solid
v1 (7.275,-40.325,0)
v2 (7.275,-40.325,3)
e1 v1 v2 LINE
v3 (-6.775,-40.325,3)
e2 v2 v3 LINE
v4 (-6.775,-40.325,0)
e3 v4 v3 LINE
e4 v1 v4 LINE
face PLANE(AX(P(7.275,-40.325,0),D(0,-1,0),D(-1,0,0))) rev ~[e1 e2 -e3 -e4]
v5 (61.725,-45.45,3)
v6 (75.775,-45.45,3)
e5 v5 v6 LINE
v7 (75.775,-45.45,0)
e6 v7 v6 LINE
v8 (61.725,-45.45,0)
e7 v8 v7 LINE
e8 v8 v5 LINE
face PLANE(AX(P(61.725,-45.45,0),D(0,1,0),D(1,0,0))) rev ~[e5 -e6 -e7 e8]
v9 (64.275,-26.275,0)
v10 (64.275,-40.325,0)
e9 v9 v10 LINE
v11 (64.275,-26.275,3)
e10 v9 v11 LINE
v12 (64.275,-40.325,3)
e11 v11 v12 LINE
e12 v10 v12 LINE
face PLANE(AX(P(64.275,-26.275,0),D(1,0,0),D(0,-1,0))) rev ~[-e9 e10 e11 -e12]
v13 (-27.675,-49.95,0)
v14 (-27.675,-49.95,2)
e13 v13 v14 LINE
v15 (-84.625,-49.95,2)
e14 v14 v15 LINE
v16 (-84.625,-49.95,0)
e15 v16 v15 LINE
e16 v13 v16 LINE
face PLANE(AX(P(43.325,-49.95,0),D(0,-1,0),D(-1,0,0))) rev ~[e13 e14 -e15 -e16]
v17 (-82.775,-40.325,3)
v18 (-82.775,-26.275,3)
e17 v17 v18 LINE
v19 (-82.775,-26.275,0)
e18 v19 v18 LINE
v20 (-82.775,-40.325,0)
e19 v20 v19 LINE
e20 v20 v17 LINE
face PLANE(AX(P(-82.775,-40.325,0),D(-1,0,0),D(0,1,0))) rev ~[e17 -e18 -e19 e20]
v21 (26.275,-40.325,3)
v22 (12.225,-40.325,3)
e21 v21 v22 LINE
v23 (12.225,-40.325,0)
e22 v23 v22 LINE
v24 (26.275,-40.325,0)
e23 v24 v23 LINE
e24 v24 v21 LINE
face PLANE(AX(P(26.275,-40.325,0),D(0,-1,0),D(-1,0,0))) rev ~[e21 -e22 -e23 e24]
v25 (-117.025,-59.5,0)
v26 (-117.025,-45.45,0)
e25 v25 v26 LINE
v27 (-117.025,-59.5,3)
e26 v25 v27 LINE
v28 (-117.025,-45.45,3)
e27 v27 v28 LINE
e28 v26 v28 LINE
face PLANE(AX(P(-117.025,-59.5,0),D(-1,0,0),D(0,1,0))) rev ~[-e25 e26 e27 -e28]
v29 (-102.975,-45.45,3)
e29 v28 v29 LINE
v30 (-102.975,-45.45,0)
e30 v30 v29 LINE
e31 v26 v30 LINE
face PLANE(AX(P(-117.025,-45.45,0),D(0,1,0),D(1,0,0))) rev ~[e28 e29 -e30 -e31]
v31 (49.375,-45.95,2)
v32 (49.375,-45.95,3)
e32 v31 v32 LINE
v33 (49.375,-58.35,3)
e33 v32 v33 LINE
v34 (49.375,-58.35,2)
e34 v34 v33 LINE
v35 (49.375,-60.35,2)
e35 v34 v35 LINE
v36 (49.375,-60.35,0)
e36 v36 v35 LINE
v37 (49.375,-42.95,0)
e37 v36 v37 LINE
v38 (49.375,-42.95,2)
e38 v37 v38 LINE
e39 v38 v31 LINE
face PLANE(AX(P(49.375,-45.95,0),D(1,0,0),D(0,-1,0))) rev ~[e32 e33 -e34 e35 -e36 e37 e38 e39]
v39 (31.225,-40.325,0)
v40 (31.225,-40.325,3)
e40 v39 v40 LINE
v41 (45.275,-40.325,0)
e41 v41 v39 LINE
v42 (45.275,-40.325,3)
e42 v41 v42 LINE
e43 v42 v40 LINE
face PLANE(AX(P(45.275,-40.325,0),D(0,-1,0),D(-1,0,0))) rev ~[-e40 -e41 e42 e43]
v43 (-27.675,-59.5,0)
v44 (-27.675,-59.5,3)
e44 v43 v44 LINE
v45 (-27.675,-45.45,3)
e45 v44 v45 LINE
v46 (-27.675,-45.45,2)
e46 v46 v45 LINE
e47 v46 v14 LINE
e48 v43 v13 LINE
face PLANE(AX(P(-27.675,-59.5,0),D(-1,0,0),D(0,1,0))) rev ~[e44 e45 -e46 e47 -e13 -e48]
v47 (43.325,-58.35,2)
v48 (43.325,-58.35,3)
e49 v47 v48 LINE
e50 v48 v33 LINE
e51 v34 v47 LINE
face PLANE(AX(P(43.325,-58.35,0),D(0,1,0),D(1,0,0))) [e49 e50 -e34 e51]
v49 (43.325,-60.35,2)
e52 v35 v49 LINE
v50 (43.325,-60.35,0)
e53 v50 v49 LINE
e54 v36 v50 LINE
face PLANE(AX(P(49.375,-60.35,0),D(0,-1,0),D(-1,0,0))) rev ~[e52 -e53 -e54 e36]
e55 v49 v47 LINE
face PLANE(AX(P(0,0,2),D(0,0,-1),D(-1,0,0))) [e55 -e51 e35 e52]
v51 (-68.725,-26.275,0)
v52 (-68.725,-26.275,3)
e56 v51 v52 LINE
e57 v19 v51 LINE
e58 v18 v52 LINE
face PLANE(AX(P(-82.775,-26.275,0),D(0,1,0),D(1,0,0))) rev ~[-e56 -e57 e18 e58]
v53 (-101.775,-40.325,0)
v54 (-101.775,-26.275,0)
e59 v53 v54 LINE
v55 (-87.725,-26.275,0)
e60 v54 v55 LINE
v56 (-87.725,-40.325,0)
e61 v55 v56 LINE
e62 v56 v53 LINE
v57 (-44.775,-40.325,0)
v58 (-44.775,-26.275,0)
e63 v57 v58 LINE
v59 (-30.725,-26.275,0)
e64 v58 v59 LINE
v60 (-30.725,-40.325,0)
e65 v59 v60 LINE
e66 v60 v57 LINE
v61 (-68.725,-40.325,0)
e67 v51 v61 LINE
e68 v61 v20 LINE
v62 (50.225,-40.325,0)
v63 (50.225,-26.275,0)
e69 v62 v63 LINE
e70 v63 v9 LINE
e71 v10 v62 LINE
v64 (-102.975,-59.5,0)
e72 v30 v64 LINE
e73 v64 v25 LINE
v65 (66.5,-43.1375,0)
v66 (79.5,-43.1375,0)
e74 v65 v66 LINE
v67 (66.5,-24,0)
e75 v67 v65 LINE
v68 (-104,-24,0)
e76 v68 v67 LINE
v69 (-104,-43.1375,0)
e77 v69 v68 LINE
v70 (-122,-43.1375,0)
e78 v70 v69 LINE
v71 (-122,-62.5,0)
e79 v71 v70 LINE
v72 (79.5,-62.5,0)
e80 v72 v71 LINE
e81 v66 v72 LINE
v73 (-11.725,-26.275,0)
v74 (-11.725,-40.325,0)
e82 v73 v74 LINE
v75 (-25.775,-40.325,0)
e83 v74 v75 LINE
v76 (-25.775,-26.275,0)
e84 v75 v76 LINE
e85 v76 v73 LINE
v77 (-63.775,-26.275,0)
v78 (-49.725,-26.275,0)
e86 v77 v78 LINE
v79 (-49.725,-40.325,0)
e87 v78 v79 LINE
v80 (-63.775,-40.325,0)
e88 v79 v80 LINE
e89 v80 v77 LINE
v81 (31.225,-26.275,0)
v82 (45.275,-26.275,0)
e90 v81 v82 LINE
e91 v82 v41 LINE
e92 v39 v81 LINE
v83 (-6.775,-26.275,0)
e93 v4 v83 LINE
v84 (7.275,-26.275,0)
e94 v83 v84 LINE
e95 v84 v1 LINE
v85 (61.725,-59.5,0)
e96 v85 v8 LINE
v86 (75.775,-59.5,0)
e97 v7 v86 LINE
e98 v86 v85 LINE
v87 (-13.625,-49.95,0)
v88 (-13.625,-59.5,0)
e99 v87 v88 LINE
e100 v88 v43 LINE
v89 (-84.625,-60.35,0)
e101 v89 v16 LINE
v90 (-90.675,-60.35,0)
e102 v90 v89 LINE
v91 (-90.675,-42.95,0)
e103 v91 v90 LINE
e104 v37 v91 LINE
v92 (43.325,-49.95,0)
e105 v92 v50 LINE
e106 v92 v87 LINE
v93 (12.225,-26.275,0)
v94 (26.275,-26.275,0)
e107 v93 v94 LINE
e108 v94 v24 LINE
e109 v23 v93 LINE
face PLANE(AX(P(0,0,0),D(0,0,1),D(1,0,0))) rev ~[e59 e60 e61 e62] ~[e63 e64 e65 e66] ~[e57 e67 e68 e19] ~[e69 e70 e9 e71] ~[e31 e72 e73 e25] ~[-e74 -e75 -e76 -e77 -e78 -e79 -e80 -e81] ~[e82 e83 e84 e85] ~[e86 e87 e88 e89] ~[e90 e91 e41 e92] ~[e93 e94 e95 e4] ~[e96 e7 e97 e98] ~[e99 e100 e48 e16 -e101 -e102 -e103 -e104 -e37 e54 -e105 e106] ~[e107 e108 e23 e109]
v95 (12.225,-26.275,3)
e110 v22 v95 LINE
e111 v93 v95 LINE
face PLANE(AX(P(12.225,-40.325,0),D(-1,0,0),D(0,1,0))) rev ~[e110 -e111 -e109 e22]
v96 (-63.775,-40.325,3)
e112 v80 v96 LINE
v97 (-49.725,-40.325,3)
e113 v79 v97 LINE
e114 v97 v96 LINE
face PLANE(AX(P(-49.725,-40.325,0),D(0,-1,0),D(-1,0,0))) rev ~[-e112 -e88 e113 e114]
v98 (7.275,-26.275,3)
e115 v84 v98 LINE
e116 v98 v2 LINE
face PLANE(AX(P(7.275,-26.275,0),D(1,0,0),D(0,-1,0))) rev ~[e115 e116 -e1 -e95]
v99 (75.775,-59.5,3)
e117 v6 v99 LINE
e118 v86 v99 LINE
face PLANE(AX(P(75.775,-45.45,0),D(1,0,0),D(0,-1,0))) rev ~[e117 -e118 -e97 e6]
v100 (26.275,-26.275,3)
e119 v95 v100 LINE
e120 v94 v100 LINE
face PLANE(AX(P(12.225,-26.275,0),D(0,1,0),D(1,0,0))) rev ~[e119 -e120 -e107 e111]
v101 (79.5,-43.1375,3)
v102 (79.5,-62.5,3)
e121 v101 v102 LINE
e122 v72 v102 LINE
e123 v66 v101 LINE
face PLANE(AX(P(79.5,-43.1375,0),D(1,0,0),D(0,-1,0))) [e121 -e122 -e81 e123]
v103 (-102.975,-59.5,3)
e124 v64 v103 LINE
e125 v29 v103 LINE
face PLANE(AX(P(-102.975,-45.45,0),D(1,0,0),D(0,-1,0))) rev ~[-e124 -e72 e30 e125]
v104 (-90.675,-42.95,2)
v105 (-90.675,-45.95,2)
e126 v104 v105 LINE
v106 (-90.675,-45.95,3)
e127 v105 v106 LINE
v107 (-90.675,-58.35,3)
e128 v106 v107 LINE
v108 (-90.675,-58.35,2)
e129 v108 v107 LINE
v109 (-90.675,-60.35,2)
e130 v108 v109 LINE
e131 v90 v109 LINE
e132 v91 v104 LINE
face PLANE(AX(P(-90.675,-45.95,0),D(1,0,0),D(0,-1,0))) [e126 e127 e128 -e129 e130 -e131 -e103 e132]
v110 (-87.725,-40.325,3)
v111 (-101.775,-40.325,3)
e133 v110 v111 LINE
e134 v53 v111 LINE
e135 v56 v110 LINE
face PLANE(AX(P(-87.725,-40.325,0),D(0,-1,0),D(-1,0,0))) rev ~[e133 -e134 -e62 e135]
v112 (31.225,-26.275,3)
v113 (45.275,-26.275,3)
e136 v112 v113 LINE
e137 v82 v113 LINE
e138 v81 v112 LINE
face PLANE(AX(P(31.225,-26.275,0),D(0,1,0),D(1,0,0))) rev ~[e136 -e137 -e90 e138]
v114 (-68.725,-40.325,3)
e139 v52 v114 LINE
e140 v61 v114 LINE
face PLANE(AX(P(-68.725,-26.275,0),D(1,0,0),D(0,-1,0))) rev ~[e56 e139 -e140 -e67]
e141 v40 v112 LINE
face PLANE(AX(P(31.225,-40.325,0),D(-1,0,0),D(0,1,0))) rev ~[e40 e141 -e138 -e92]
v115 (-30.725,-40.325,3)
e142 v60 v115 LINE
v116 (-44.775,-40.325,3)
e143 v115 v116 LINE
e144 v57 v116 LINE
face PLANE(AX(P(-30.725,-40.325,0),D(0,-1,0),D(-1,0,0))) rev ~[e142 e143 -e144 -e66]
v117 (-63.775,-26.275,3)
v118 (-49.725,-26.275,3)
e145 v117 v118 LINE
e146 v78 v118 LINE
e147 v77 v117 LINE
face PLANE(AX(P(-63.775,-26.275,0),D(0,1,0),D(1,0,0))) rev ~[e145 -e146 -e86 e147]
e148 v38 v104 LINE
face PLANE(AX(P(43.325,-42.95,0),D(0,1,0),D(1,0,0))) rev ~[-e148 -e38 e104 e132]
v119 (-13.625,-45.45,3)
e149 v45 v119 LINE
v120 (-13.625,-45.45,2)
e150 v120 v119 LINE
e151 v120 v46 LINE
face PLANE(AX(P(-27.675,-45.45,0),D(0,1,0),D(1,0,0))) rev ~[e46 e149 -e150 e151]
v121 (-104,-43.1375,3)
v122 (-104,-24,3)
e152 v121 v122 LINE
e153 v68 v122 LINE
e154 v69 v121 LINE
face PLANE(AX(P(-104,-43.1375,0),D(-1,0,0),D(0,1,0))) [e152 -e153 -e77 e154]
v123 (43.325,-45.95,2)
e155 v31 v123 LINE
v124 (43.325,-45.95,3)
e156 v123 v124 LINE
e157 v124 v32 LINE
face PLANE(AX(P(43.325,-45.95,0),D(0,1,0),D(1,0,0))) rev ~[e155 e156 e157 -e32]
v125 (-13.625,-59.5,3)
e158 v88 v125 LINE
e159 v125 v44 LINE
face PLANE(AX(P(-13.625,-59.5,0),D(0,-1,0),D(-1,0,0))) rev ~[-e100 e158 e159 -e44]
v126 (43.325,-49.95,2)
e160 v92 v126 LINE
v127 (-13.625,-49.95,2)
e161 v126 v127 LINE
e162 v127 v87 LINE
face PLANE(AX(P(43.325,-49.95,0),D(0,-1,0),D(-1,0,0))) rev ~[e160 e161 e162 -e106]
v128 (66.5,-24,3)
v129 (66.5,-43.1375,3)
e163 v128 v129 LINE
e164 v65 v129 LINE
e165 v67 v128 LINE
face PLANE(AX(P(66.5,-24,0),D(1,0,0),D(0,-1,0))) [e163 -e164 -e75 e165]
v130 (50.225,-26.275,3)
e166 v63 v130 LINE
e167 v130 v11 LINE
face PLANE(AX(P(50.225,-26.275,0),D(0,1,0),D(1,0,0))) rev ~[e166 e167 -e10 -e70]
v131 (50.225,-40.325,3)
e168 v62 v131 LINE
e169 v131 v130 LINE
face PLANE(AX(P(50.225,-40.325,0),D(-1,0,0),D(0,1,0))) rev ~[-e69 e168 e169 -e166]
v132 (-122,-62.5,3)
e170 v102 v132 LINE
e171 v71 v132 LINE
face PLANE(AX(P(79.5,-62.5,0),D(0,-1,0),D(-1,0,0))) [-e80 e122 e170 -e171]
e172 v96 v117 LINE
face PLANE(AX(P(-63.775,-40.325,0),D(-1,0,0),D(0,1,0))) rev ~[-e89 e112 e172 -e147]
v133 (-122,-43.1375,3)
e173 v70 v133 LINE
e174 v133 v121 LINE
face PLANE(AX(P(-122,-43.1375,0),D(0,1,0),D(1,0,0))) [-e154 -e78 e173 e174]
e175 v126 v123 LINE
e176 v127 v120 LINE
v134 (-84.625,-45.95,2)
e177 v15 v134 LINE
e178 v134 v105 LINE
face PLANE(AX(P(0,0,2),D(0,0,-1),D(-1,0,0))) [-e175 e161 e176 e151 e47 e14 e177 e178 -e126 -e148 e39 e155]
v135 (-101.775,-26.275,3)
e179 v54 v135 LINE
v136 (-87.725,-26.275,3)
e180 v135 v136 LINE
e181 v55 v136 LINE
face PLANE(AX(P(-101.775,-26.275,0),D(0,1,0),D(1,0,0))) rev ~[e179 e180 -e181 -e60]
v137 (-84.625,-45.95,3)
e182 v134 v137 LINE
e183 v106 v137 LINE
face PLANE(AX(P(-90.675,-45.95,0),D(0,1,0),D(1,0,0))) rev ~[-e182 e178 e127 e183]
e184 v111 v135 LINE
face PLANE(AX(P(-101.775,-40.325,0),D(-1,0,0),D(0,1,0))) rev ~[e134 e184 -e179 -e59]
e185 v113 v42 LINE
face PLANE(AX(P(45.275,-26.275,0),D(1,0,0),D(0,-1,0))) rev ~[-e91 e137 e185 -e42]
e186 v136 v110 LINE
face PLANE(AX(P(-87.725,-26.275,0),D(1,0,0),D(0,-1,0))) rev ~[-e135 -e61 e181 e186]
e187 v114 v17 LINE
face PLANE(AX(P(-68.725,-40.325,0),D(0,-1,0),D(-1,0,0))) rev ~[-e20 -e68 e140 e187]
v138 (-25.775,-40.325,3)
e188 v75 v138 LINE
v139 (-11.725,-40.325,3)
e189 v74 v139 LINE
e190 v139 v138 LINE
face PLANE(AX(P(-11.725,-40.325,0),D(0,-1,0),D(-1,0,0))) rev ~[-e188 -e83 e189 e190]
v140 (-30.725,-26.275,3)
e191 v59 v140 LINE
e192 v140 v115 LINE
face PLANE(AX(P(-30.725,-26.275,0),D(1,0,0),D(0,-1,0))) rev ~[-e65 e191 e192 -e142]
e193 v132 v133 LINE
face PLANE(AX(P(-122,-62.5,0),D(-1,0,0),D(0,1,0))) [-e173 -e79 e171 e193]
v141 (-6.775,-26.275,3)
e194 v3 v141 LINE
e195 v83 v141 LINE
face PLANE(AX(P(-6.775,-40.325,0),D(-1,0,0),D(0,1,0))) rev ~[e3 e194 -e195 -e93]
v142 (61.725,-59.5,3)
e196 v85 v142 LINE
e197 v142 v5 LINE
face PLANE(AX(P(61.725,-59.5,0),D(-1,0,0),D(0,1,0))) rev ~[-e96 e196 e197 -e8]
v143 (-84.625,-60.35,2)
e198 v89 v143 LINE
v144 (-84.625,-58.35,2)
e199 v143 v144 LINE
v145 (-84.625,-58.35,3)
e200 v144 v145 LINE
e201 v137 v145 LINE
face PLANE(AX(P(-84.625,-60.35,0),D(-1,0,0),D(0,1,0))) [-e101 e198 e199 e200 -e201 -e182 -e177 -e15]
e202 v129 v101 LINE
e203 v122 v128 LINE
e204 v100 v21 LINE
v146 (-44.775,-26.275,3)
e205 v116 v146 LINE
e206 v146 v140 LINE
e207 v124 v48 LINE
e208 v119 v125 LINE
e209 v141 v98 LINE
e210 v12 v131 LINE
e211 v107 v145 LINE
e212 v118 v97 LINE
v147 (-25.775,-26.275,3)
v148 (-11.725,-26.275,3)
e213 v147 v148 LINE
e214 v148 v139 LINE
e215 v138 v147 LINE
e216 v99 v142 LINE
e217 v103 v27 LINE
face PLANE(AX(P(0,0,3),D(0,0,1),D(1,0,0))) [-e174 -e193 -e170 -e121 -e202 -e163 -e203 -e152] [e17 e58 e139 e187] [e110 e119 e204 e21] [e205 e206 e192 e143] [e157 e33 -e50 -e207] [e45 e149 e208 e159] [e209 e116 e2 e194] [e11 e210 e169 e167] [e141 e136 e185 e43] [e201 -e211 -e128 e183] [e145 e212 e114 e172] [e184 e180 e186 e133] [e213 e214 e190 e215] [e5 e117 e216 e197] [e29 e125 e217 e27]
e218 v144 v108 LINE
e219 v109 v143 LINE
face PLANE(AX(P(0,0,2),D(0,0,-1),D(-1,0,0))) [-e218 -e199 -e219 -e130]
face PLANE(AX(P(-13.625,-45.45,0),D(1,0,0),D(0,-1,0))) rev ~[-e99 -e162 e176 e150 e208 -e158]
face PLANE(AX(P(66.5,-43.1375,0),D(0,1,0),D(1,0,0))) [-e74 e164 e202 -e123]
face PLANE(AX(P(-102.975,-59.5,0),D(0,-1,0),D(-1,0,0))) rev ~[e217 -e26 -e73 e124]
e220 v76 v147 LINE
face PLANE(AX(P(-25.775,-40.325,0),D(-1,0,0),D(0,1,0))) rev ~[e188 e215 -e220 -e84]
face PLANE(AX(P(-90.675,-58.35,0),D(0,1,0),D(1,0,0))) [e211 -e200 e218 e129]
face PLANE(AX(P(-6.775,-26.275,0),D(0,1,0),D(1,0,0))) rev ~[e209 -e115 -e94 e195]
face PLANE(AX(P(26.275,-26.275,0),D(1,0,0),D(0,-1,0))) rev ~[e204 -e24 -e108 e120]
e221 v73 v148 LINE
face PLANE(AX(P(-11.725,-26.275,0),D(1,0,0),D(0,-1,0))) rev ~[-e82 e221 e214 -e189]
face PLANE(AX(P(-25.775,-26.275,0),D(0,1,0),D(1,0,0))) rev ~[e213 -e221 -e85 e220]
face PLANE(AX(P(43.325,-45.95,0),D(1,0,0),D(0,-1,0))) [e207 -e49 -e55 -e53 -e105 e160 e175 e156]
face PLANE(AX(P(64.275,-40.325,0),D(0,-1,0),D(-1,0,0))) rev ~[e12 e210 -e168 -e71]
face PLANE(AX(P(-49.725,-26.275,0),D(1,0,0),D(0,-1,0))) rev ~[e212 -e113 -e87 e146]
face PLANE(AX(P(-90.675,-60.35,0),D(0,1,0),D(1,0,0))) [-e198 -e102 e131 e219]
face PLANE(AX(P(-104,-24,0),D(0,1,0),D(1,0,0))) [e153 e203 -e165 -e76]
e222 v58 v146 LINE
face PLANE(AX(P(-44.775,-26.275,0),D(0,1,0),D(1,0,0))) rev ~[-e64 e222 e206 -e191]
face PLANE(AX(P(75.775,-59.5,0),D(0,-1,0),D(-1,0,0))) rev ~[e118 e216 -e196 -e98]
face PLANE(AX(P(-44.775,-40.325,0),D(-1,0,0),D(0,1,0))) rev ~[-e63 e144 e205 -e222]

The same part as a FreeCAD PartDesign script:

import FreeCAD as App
import Part
import Sketcher
Q = App.Units.Quantity


def add_polygon(sketch, points):
    """Adds a closed chain of lines whose ends are joined by coincident constraints."""
    first, n = sketch.GeometryCount, len(points)
    for a, b in zip(points, points[1:] + points[:1]):
        sketch.addGeometry(Part.LineSegment(App.Vector(*a, 0), App.Vector(*b, 0)), False)
    for i in range(n):
        sketch.addConstraint(Sketcher.Constraint("Coincident", first + i, 2, first + (i + 1) % n, 1))

doc = App.newDocument("Part")
params = doc.addObject("Spreadsheet::Sheet", "Params")
for row, (alias, value) in enumerate([
    ("sketch1_height", "12.4 mm"),
    ("sketch1_width", "13 mm"),
    ("sketch1_width2", "18 mm"),
    ("sketch1_width3", "201.5 mm"),
    ("sketch1_width4", "14.05 mm"),
    ("pad1_length", "3 mm"),
    ("sketch2_height", "17.4 mm"),
    ("sketch2_height2", "10.4 mm"),
    ("sketch2_width", "6.05 mm"),
    ("pocket1_length", "2 mm"),
], start=1):
    params.set(f"A{row}", alias)
    params.set(f"B{row}", "=" + value)
    params.setAlias(f"B{row}", alias)

body = doc.addObject("PartDesign::Body", "Body")

# Sketch on XY plane
sketch1 = body.newObject("Sketcher::SketchObject", "Sketch")
sketch1.AttachmentSupport = (doc.getObject("XY_Plane"), [""])
sketch1.MapMode = "FlatFace"
add_polygon(sketch1, [(-122, -43), (-122, -62), (80, -62), (80, -43), (66, -43), (66, -24), (-104, -24), (-104, -43)])  # lines 0-7
add_polygon(sketch1, [(-117, -45), (-103, -45), (-103, -60), (-117, -60)])  # lines 8-11
add_polygon(sketch1, [(-91, -58), (-91, -46), (-85, -46), (-85, -58)])  # lines 12-15
add_polygon(sketch1, [(-28, -60), (-28, -45), (-14, -45), (-14, -60)])  # lines 16-19
add_polygon(sketch1, [(43, -58), (43, -46), (49, -46), (49, -58)])  # lines 20-23
add_polygon(sketch1, [(62, -60), (62, -45), (76, -45), (76, -60)])  # lines 24-27
add_polygon(sketch1, [(-88, -26), (-88, -40), (-102, -40), (-102, -26)])  # lines 28-31
add_polygon(sketch1, [(-69, -40), (-83, -40), (-83, -26), (-69, -26)])  # lines 32-35
add_polygon(sketch1, [(-50, -26), (-50, -40), (-64, -40), (-64, -26)])  # lines 36-39
add_polygon(sketch1, [(-31, -40), (-45, -40), (-45, -26), (-31, -26)])  # lines 40-43
add_polygon(sketch1, [(-26, -40), (-26, -26), (-12, -26), (-12, -40)])  # lines 44-47
add_polygon(sketch1, [(7, -40), (-7, -40), (-7, -26), (7, -26)])  # lines 48-51
add_polygon(sketch1, [(26, -40), (12, -40), (12, -26), (26, -26)])  # lines 52-55
add_polygon(sketch1, [(31, -40), (31, -26), (45, -26), (45, -40)])  # lines 56-59
add_polygon(sketch1, [(50, -40), (50, -26), (64, -26), (64, -40)])  # lines 60-63
sketch1.addConstraint([
    Sketcher.Constraint("Vertical", 0),
    Sketcher.Constraint("Horizontal", 1),
    Sketcher.Constraint("Vertical", 2),
    Sketcher.Constraint("Horizontal", 3),
    Sketcher.Constraint("Vertical", 4),
    Sketcher.Constraint("Horizontal", 5),
    Sketcher.Constraint("Vertical", 6),
    Sketcher.Constraint("Horizontal", 7),
    Sketcher.Constraint("Horizontal", 8),
    Sketcher.Constraint("Vertical", 9),
    Sketcher.Constraint("Horizontal", 10),
    Sketcher.Constraint("Vertical", 11),
    Sketcher.Constraint("Vertical", 12),
    Sketcher.Constraint("Horizontal", 13),
    Sketcher.Constraint("Vertical", 14),
    Sketcher.Constraint("Horizontal", 15),
    Sketcher.Constraint("Vertical", 16),
    Sketcher.Constraint("Horizontal", 17),
    Sketcher.Constraint("Vertical", 18),
    Sketcher.Constraint("Horizontal", 19),
    Sketcher.Constraint("Vertical", 20),
    Sketcher.Constraint("Horizontal", 21),
    Sketcher.Constraint("Vertical", 22),
    Sketcher.Constraint("Horizontal", 23),
    Sketcher.Constraint("Vertical", 24),
    Sketcher.Constraint("Horizontal", 25),
    Sketcher.Constraint("Vertical", 26),
    Sketcher.Constraint("Horizontal", 27),
    Sketcher.Constraint("Vertical", 28),
    Sketcher.Constraint("Horizontal", 29),
    Sketcher.Constraint("Vertical", 30),
    Sketcher.Constraint("Horizontal", 31),
    Sketcher.Constraint("Horizontal", 32),
    Sketcher.Constraint("Vertical", 33),
    Sketcher.Constraint("Horizontal", 34),
    Sketcher.Constraint("Vertical", 35),
    Sketcher.Constraint("Vertical", 36),
    Sketcher.Constraint("Horizontal", 37),
    Sketcher.Constraint("Vertical", 38),
    Sketcher.Constraint("Horizontal", 39),
    Sketcher.Constraint("Horizontal", 40),
    Sketcher.Constraint("Vertical", 41),
    Sketcher.Constraint("Horizontal", 42),
    Sketcher.Constraint("Vertical", 43),
    Sketcher.Constraint("Vertical", 44),
    Sketcher.Constraint("Horizontal", 45),
    Sketcher.Constraint("Vertical", 46),
    Sketcher.Constraint("Horizontal", 47),
    Sketcher.Constraint("Horizontal", 48),
    Sketcher.Constraint("Vertical", 49),
    Sketcher.Constraint("Horizontal", 50),
    Sketcher.Constraint("Vertical", 51),
    Sketcher.Constraint("Horizontal", 52),
    Sketcher.Constraint("Vertical", 53),
    Sketcher.Constraint("Horizontal", 54),
    Sketcher.Constraint("Vertical", 55),
    Sketcher.Constraint("Vertical", 56),
    Sketcher.Constraint("Horizontal", 57),
    Sketcher.Constraint("Vertical", 58),
    Sketcher.Constraint("Horizontal", 59),
    Sketcher.Constraint("Vertical", 60),
    Sketcher.Constraint("Horizontal", 61),
    Sketcher.Constraint("Vertical", 62),
    Sketcher.Constraint("Horizontal", 63),
    Sketcher.Constraint("Horizontal", 3, 2, 6, 2),
    Sketcher.Constraint("Horizontal", 11, 2, 16, 2),
    Sketcher.Constraint("Horizontal", 10, 2, 18, 2),
    Sketcher.Constraint("Horizontal", 13, 2, 20, 2),
    Sketcher.Constraint("Horizontal", 15, 2, 22, 2),
    Sketcher.Constraint("Horizontal", 17, 2, 24, 2),
    Sketcher.Constraint("Horizontal", 19, 2, 26, 2),
    Sketcher.Constraint("Horizontal", 29, 2, 32, 2),
    Sketcher.Constraint("Horizontal", 31, 2, 33, 2),
    Sketcher.Constraint("Horizontal", 35, 2, 36, 2),
    Sketcher.Constraint("Horizontal", 34, 2, 38, 2),
    Sketcher.Constraint("Horizontal", 37, 2, 40, 2),
    Sketcher.Constraint("Horizontal", 39, 2, 41, 2),
    Sketcher.Constraint("Horizontal", 42, 2, 44, 2),
    Sketcher.Constraint("Horizontal", 43, 2, 46, 2),
    Sketcher.Constraint("Horizontal", 47, 2, 48, 2),
    Sketcher.Constraint("Horizontal", 45, 2, 49, 2),
    Sketcher.Constraint("Horizontal", 51, 2, 52, 2),
    Sketcher.Constraint("Horizontal", 50, 2, 53, 2),
    Sketcher.Constraint("Horizontal", 54, 2, 56, 2),
    Sketcher.Constraint("Horizontal", 55, 2, 58, 2),
    Sketcher.Constraint("Horizontal", 57, 2, 60, 2),
    Sketcher.Constraint("Horizontal", 59, 2, 62, 2),
    Sketcher.Constraint("Equal", 10, 17),
    Sketcher.Constraint("Equal", 15, 21),
    Sketcher.Constraint("Equal", 19, 25),
    Sketcher.Constraint("Equal", 27, 29),
    Sketcher.Constraint("Equal", 31, 32),
    Sketcher.Constraint("Equal", 34, 37),
    Sketcher.Constraint("Equal", 39, 40),
    Sketcher.Constraint("Equal", 42, 45),
    Sketcher.Constraint("Equal", 47, 48),
    Sketcher.Constraint("Equal", 50, 52),
    Sketcher.Constraint("Equal", 54, 57),
    Sketcher.Constraint("Equal", 59, 61),
    Sketcher.Constraint("Equal", 63, 9),
    Sketcher.Constraint("Equal", 26, 28),
    Sketcher.Constraint("DistanceY", 12, 1, 12, 2, Q("12.4 mm")),
    Sketcher.Constraint("DistanceX", 3, 2, 3, 1, Q("13 mm")),
    Sketcher.Constraint("DistanceX", 7, 2, 7, 1, Q("18 mm")),
    Sketcher.Constraint("DistanceX", 1, 1, 1, 2, Q("201.5 mm")),
    Sketcher.Constraint("DistanceX", 0, 2, -1, 1, Q("122 mm")),
    Sketcher.Constraint("DistanceY", 4, 2, -1, 1, Q("24 mm")),
    Sketcher.Constraint("DistanceX", 8, 1, 8, 2, Q("14.05 mm")),
    Sketcher.Constraint("DistanceX", 13, 1, 13, 2, Q("6.05 mm")),
    Sketcher.Constraint("DistanceY", 0, 2, -1, 1, Q("62.5 mm")),
    Sketcher.Constraint("DistanceY", 9, 2, -1, 1, Q("59.5 mm")),
    Sketcher.Constraint("DistanceY", 12, 2, -1, 1, Q("45.95 mm")),
    Sketcher.Constraint("DistanceY", 0, 2, 0, 1, Q("19.3625 mm")),
    Sketcher.Constraint("DistanceX", 8, 2, -1, 1, Q("102.975 mm")),
    Sketcher.Constraint("DistanceX", 12, 2, -1, 1, Q("90.675 mm")),
    Sketcher.Constraint("DistanceX", 16, 2, -1, 1, Q("27.675 mm")),
    Sketcher.Constraint("DistanceX", -1, 1, 20, 2, Q("43.325 mm")),
    Sketcher.Constraint("DistanceX", -1, 1, 24, 2, Q("61.725 mm")),
    Sketcher.Constraint("DistanceX", 28, 2, -1, 1, Q("87.725 mm")),
    Sketcher.Constraint("DistanceY", 28, 2, -1, 1, Q("40.325 mm")),
    Sketcher.Constraint("DistanceX", 32, 2, -1, 1, Q("82.775 mm")),
    Sketcher.Constraint("DistanceX", 36, 2, -1, 1, Q("49.725 mm")),
    Sketcher.Constraint("DistanceX", 40, 2, -1, 1, Q("44.775 mm")),
    Sketcher.Constraint("DistanceX", 44, 2, -1, 1, Q("25.775 mm")),
    Sketcher.Constraint("DistanceX", 48, 2, -1, 1, Q("6.775 mm")),
    Sketcher.Constraint("DistanceX", -1, 1, 52, 2, Q("12.225 mm")),
    Sketcher.Constraint("DistanceX", -1, 1, 56, 2, Q("31.225 mm")),
    Sketcher.Constraint("DistanceX", -1, 1, 60, 2, Q("50.225 mm")),
])
sketch1.setExpression("Constraints[165]", "Params.sketch1_height")
sketch1.setExpression("Constraints[166]", "Params.sketch1_width")
sketch1.setExpression("Constraints[167]", "Params.sketch1_width2")
sketch1.setExpression("Constraints[168]", "Params.sketch1_width3")
sketch1.setExpression("Constraints[171]", "Params.sketch1_width4")
pad1 = body.newObject("PartDesign::Pad", "Pad")
pad1.Profile = sketch1
pad1.setExpression("Length", "Params.pad1_length")

# Sketch on XY plane
sketch2 = body.newObject("Sketcher::SketchObject", "Sketch001")
sketch2.AttachmentSupport = (doc.getObject("XY_Plane"), [""])
sketch2.MapMode = "FlatFace"
add_polygon(sketch2, [(49, -43), (49, -60), (43, -60), (43, -50), (-85, -50), (-85, -60), (-91, -60), (-91, -43)])  # lines 0-7
sketch2.addConstraint([
    Sketcher.Constraint("Vertical", 0),
    Sketcher.Constraint("Horizontal", 1),
    Sketcher.Constraint("Vertical", 2),
    Sketcher.Constraint("Horizontal", 3),
    Sketcher.Constraint("Vertical", 4),
    Sketcher.Constraint("Horizontal", 5),
    Sketcher.Constraint("Vertical", 6),
    Sketcher.Constraint("Horizontal", 7),
    Sketcher.Constraint("Horizontal", 1, 2, 4, 2),
    Sketcher.Constraint("Equal", 1, 5),
    Sketcher.Constraint("DistanceY", 0, 2, 0, 1, Q("17.4 mm")),
    Sketcher.Constraint("DistanceY", 2, 1, 2, 2, Q("10.4 mm")),
    Sketcher.Constraint("DistanceX", 3, 2, 0, 2, Q("134 mm")),
    Sketcher.Constraint("DistanceX", 1, 2, 1, 1, Q("6.05 mm")),
    Sketcher.Constraint("DistanceY", 0, 2, -1, 1, Q("60.35 mm")),
    Sketcher.Constraint("DistanceX", -1, 1, 0, 2, Q("49.375 mm")),
])
sketch2.setExpression("Constraints[18]", "Params.sketch2_height")
sketch2.setExpression("Constraints[19]", "Params.sketch2_height2")
sketch2.setExpression("Constraints[21]", "Params.sketch2_width")
pocket1 = body.newObject("PartDesign::Pocket", "Pocket")
pocket1.Profile = sketch2
pocket1.setExpression("Length", "Params.pocket1_length")
pocket1.Reversed = True

doc.recompute()
